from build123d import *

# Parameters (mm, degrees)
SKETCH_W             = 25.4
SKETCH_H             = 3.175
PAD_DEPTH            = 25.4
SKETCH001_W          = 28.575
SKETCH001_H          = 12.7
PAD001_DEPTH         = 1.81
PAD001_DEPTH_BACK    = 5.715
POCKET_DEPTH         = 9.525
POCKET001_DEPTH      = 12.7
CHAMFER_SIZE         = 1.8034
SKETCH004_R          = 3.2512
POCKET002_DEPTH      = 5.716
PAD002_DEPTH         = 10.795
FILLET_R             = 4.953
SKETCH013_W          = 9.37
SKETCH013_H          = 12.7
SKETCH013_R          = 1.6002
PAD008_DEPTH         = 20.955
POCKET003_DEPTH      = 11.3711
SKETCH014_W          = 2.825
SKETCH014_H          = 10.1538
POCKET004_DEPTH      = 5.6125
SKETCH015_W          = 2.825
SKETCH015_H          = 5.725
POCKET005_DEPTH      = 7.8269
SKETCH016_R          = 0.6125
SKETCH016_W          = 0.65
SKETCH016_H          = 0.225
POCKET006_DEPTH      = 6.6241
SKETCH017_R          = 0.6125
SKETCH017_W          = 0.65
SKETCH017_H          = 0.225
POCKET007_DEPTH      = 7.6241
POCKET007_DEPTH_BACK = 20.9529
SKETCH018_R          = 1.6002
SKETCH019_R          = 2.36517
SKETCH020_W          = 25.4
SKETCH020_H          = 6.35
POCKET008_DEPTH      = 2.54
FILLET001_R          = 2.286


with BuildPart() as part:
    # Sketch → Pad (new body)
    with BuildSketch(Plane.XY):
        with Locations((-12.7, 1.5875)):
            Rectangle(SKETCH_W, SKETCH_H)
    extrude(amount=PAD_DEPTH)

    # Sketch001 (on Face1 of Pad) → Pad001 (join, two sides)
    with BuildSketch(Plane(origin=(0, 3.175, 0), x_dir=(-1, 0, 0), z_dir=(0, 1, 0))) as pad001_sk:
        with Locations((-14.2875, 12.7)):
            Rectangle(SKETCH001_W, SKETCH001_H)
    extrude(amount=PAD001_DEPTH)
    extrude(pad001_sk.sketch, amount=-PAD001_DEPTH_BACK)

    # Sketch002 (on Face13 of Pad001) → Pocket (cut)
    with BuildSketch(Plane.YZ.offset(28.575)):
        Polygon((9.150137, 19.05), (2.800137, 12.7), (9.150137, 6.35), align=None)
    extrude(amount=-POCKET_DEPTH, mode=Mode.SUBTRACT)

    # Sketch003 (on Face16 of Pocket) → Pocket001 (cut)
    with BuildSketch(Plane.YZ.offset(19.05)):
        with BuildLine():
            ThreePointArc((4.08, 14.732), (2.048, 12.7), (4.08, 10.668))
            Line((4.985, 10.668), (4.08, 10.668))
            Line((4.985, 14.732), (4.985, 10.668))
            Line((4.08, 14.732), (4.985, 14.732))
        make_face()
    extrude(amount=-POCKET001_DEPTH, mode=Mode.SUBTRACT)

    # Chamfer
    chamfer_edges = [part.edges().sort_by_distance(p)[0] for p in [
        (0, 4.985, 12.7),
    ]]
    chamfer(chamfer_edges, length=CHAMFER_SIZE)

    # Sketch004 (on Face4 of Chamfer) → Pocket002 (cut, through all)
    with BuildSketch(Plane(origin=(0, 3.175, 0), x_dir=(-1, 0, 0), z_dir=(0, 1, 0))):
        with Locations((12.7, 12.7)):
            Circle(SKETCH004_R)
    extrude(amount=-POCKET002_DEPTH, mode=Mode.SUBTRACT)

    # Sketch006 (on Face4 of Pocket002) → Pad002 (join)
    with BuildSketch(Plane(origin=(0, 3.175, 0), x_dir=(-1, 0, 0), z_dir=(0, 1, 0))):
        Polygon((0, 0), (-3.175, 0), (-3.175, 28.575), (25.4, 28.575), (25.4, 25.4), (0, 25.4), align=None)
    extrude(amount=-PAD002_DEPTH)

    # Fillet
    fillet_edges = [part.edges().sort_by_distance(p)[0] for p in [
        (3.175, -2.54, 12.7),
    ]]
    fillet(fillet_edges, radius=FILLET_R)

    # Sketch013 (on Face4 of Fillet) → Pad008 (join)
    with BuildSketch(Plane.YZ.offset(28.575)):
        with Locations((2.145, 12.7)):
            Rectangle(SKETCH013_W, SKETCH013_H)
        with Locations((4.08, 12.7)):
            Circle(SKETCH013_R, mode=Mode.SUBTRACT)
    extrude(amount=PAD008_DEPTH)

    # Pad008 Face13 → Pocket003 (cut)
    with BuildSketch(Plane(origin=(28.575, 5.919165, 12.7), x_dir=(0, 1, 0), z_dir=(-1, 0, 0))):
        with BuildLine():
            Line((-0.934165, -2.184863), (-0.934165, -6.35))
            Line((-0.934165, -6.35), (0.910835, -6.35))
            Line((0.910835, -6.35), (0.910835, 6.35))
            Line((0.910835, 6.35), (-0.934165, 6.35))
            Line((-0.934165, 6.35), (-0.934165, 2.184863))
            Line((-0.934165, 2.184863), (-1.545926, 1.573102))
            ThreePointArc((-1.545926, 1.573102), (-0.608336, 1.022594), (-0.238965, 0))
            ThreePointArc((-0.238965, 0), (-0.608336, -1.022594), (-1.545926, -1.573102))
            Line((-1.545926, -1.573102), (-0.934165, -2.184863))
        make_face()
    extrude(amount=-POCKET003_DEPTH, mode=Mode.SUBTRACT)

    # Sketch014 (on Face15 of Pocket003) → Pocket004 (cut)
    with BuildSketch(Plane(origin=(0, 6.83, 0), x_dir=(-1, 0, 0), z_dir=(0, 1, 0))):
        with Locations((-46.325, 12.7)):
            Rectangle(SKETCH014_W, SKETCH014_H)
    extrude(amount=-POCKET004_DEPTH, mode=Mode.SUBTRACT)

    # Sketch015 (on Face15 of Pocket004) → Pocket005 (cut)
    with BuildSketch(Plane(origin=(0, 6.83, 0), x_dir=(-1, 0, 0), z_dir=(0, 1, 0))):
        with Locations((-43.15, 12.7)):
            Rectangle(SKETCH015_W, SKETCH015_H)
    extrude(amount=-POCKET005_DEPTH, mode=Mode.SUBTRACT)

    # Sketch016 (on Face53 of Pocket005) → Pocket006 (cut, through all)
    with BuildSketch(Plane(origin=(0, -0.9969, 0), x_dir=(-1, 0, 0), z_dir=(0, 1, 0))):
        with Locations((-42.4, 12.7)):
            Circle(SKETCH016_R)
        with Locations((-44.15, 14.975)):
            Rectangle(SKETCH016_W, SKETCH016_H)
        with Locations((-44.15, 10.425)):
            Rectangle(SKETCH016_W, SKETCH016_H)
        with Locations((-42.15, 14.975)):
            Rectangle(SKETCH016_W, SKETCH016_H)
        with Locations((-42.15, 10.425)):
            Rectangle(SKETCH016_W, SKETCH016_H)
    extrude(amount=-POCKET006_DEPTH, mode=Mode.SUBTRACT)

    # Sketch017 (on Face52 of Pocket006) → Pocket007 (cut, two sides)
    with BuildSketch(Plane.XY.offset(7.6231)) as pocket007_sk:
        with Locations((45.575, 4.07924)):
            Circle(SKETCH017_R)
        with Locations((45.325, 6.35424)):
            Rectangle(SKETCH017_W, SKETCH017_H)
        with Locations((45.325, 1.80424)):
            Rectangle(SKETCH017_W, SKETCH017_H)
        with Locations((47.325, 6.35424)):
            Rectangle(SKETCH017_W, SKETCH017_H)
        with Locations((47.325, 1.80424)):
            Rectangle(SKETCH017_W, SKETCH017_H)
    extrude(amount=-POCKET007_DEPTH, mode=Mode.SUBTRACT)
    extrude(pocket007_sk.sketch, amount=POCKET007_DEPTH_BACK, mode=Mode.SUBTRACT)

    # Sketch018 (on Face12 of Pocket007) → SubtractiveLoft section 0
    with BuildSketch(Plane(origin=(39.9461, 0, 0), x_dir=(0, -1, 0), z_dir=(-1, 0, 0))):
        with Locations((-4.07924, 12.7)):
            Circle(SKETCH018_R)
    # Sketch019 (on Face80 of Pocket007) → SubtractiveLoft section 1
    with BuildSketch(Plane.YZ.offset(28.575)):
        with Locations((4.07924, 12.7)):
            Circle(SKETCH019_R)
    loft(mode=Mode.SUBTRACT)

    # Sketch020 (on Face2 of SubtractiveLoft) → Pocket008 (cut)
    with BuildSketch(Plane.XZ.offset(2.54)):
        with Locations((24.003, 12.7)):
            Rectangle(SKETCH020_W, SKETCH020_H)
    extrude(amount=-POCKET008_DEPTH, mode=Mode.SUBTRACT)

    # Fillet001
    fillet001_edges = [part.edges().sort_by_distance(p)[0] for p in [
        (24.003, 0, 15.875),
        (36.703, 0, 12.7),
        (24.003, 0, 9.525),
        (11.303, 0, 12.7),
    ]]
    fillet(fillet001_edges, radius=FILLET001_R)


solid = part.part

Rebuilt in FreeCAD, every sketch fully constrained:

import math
import FreeCAD as App
import Part
import Sketcher

V = App.Vector
Q = App.Units.Quantity


def edges_at(feature, points):
    """Names of the edges that pass closest to the given points."""
    edges = feature.Shape.Edges
    near = lambda p: min(range(len(edges)), key=lambda i: edges[i].distToShape(Part.Vertex(*p))[0])
    return sorted({f"Edge{near(p) + 1}" for p in points})


def add_polygon(sketch, points):
    """Adds a closed chain of lines whose ends are joined by coincident constraints."""
    first, n = sketch.GeometryCount, len(points)
    for a, b in zip(points, points[1:] + points[:1]):
        sketch.addGeometry(Part.LineSegment(App.Vector(*a, 0), App.Vector(*b, 0)), False)
    for i in range(n):
        sketch.addConstraint(Sketcher.Constraint("Coincident", first + i, 2, first + (i + 1) % n, 1))

doc = App.newDocument("Part")
body = doc.addObject("PartDesign::Body", "Body")

sketch1 = body.newObject("Sketcher::SketchObject", "Sketch")
sketch1.AttachmentSupport = (doc.getObject("XY_Plane"), [""])
sketch1.MapMode = "FlatFace"
add_polygon(sketch1, [(-25.4, 3.2), (-25.4, 0), (0, 0), (0, 3.2)])
sketch1.addConstraint(Sketcher.Constraint("Vertical", 0))
sketch1.addConstraint(Sketcher.Constraint("Horizontal", 1))
sketch1.addConstraint(Sketcher.Constraint("Vertical", 2))
sketch1.addConstraint(Sketcher.Constraint("Horizontal", 3))
sketch1.addConstraint(Sketcher.Constraint("Coincident", 1, 2, -1, 1))
sketch1.addConstraint(Sketcher.Constraint("DistanceX", 1, 1, 1, 2, Q("1 in")))
sketch1.addConstraint(Sketcher.Constraint("DistanceY", 0, 2, 0, 1, Q("0.125 in")))
pad1 = body.newObject("PartDesign::Pad", "Pad")
pad1.Profile = sketch1
pad1.Length = Q("1 in")

sketch2 = body.newObject("Sketcher::SketchObject", "Sketch001")
sketch2.AttachmentSupport = (doc.getObject("XZ_Plane"), [""])
sketch2.MapMode = "FlatFace"
sketch2.AttachmentOffset = App.Placement(V(0, 0, -0.125 * 25.4), App.Rotation())
add_polygon(sketch2, [(29, 19), (29, 6), (0, 6), (0, 19)])
sketch2.addConstraint(Sketcher.Constraint("Vertical", 0))
sketch2.addConstraint(Sketcher.Constraint("Horizontal", 1))
sketch2.addConstraint(Sketcher.Constraint("Vertical", 2))
sketch2.addConstraint(Sketcher.Constraint("Horizontal", 3))
sketch2.addConstraint(Sketcher.Constraint("PointOnObject", 1, 2, -2))
sketch2.addConstraint(Sketcher.Constraint("DistanceY", 0, 2, 0, 1, Q("0.5 in")))
sketch2.addConstraint(Sketcher.Constraint("DistanceX", 1, 2, 1, 1, Q("1.125 in")))
sketch2.addConstraint(Sketcher.Constraint("DistanceY", -1, 1, 0, 2, Q("0.25 in")))
pad2 = body.newObject("PartDesign::Pad", "Pad001")
pad2.Profile = sketch2
pad2.Type = "TwoLengths"
pad2.Length = 1.81
pad2.Length2 = Q("0.225 in")
pad2.Reversed = True

sketch3 = body.newObject("Sketcher::SketchObject", "Sketch002")
sketch3.AttachmentSupport = (doc.getObject("YZ_Plane"), [""])
sketch3.MapMode = "FlatFace"
sketch3.AttachmentOffset = App.Placement(V(0, 0, 1.125 * 25.4), App.Rotation())
add_polygon(sketch3, [(9, 19), (3, 13), (9, 6)])
sketch3.addConstraint(Sketcher.Constraint("Vertical", 2))
sketch3.addConstraint(Sketcher.Constraint("Perpendicular", 0, 1))
sketch3.addConstraint(Sketcher.Constraint("Equal", 0, 1))
sketch3.addConstraint(Sketcher.Constraint("DistanceY", 2, 1, 2, 2, Q("0.5 in")))
sketch3.addConstraint(Sketcher.Constraint("DistanceY", -1, 1, 0, 2, Q("0.5 in")))
sketch3.addConstraint(Sketcher.Constraint("DistanceX", -1, 1, 0, 2, Q("2.800137 mm")))
pocket1 = body.newObject("PartDesign::Pocket", "Pocket")
pocket1.Profile = sketch3
pocket1.Length = Q("0.375 in")

sketch4 = body.newObject("Sketcher::SketchObject", "Sketch003")
sketch4.AttachmentSupport = (doc.getObject("YZ_Plane"), [""])
sketch4.MapMode = "FlatFace"
sketch4.AttachmentOffset = App.Placement(V(0, 0, 0.75 * 25.4), App.Rotation())
sketch4.addGeometry(Part.ArcOfCircle(Part.Circle(V(4.1, 12.7, 0), V(0, 0, 1), 2), math.radians(90), math.radians(270)), False)
sketch4.addGeometry(Part.LineSegment(V(4.1, 10.7, 0), V(5, 10.7, 0)), False)
sketch4.addGeometry(Part.LineSegment(V(5, 10.7, 0), V(5, 14.7, 0)), False)
sketch4.addGeometry(Part.LineSegment(V(5, 14.7, 0), V(4.1, 14.7, 0)), False)
sketch4.addConstraint(Sketcher.Constraint("Tangent", 0, 2, 1, 1))
sketch4.addConstraint(Sketcher.Constraint("Coincident", 1, 2, 2, 1))
sketch4.addConstraint(Sketcher.Constraint("Coincident", 2, 2, 3, 1))
sketch4.addConstraint(Sketcher.Constraint("Tangent", 3, 2, 0, 1))
sketch4.addConstraint(Sketcher.Constraint("Horizontal", 1))
sketch4.addConstraint(Sketcher.Constraint("Vertical", 2))
sketch4.addConstraint(Sketcher.Constraint("Horizontal", 3))
sketch4.addConstraint(Sketcher.Constraint("Radius", 0, Q("0.08 in")))
sketch4.addConstraint(Sketcher.Constraint("DistanceY", -1, 1, 0, 3, Q("0.5 in")))
sketch4.addConstraint(Sketcher.Constraint("DistanceX", 1, 1, 1, 2, Q("0.905 mm")))
sketch4.addConstraint(Sketcher.Constraint("DistanceX", -1, 1, 0, 3, Q("4.08 mm")))
pocket2 = body.newObject("PartDesign::Pocket", "Pocket001")
pocket2.Profile = sketch4
pocket2.Length = Q("0.5 in")
doc.recompute()

chamfer = body.newObject("PartDesign::Chamfer", "Chamfer")
chamfer.Base = (pocket2, edges_at(pocket2, [(0, 4.985, 12.7)]))
chamfer.Size = Q("0.071 in")

sketch5 = body.newObject("Sketcher::SketchObject", "Sketch004")
sketch5.AttachmentSupport = (doc.getObject("XZ_Plane"), [""])
sketch5.MapMode = "FlatFace"
sketch5.AttachmentOffset = App.Placement(V(0, 0, -0.125 * 25.4), App.Rotation())
sketch5.addGeometry(Part.Circle(V(-12.7, 12.7, 0), V(0, 0, 1), 3.3), False)
sketch5.addConstraint(Sketcher.Constraint("Diameter", 0, Q("0.256 in")))
sketch5.addConstraint(Sketcher.Constraint("DistanceX", 0, 3, -1, 1, Q("0.5 in")))
sketch5.addConstraint(Sketcher.Constraint("DistanceY", -1, 1, 0, 3, Q("0.5 in")))
pocket3 = body.newObject("PartDesign::Pocket", "Pocket002")
pocket3.Profile = sketch5
pocket3.Type = "ThroughAll"
pocket3.Reversed = True

sketch6 = body.newObject("Sketcher::SketchObject", "Sketch005")
sketch6.AttachmentSupport = (doc.getObject("XZ_Plane"), [""])
sketch6.MapMode = "FlatFace"
sketch6.AttachmentOffset = App.Placement(V(0, 0, -0.125 * 25.4), App.Rotation())
add_polygon(sketch6, [(3.2, 0), (0, 0), (0, 25.4), (-25.4, 25.4), (-25.4, 28.6), (3.2, 28.6)])
sketch6.addConstraint(Sketcher.Constraint("Horizontal", 0))
sketch6.addConstraint(Sketcher.Constraint("Vertical", 1))
sketch6.addConstraint(Sketcher.Constraint("Horizontal", 2))
sketch6.addConstraint(Sketcher.Constraint("Vertical", 3))
sketch6.addConstraint(Sketcher.Constraint("Horizontal", 4))
sketch6.addConstraint(Sketcher.Constraint("Vertical", 5))
sketch6.addConstraint(Sketcher.Constraint("Coincident", 0, 2, -1, 1))
sketch6.addConstraint(Sketcher.Constraint("Equal", 2, 1))
sketch6.addConstraint(Sketcher.Constraint("Equal", 0, 3))
sketch6.addConstraint(Sketcher.Constraint("DistanceX", 2, 2, 2, 1, Q("1 in")))
sketch6.addConstraint(Sketcher.Constraint("DistanceX", 0, 2, 0, 1, Q("0.125 in")))
pad3 = body.newObject("PartDesign::Pad", "Pad002")
pad3.Profile = sketch6
pad3.Length = Q("0.425 in")
doc.recompute()

fillet = body.newObject("PartDesign::Fillet", "Fillet")
fillet.Base = (pad3, edges_at(pad3, [(3.175, -2.54, 12.7)]))
fillet.Radius = Q("0.195 in")

sketch7 = body.newObject("Sketcher::SketchObject", "Sketch006")
sketch7.AttachmentSupport = (doc.getObject("YZ_Plane"), [""])
sketch7.MapMode = "FlatFace"
sketch7.AttachmentOffset = App.Placement(V(0, 0, 1.125 * 25.4), App.Rotation())
add_polygon(sketch7, [(-2.5, 19.1), (-2.5, 6.3), (6.8, 6.3), (6.8, 19.1)])
sketch7.addGeometry(Part.Circle(V(4.1, 12.7, 0), V(0, 0, 1), 1.6), False)
sketch7.addConstraint(Sketcher.Constraint("Vertical", 0))
sketch7.addConstraint(Sketcher.Constraint("Horizontal", 1))
sketch7.addConstraint(Sketcher.Constraint("Vertical", 2))
sketch7.addConstraint(Sketcher.Constraint("Horizontal", 3))
sketch7.addConstraint(Sketcher.Constraint("Diameter", 4, Q("0.126 in")))
sketch7.addConstraint(Sketcher.Constraint("DistanceY", 0, 2, 0, 1, Q("0.5 in")))
sketch7.addConstraint(Sketcher.Constraint("DistanceY", -1, 1, 4, 3, Q("0.5 in")))
sketch7.addConstraint(Sketcher.Constraint("DistanceX", 0, 2, -1, 1, Q("0.1 in")))
sketch7.addConstraint(Sketcher.Constraint("DistanceY", -1, 1, 0, 2, Q("0.25 in")))
sketch7.addConstraint(Sketcher.Constraint("DistanceX", 1, 1, 1, 2, Q("9.37 mm")))
sketch7.addConstraint(Sketcher.Constraint("DistanceX", -1, 1, 4, 3, Q("4.08 mm")))
pad4 = body.newObject("PartDesign::Pad", "Pad003")
pad4.Profile = sketch7
pad4.Length = Q("0.825 in")

sketch8 = body.newObject("Sketcher::SketchObject", "Sketch007")
sketch8.AttachmentSupport = (doc.getObject("YZ_Plane"), [""])
sketch8.MapMode = "FlatFace"
sketch8.AttachmentOffset = App.Placement(V(0, 0, 1.125 * 25.4), App.Rotation())
sketch8.addGeometry(Part.LineSegment(V(5, 14.9, 0), V(5, 19.1, 0)), False)
sketch8.addGeometry(Part.LineSegment(V(5, 19.1, 0), V(6.8, 19.1, 0)), False)
sketch8.addGeometry(Part.LineSegment(V(6.8, 19.1, 0), V(6.8, 6.3, 0)), False)
sketch8.addGeometry(Part.LineSegment(V(6.8, 6.3, 0), V(5, 6.3, 0)), False)
sketch8.addGeometry(Part.LineSegment(V(5, 6.3, 0), V(5, 10.5, 0)), False)
sketch8.addGeometry(Part.LineSegment(V(5, 10.5, 0), V(4.4, 11.1, 0)), False)
sketch8.addGeometry(Part.ArcOfCircle(Part.Circle(V(4.1, 12.7, 0), V(0, 0, 1), 1.6), math.radians(-79), math.radians(0)), False)
sketch8.addGeometry(Part.ArcOfCircle(Part.Circle(V(4.1, 12.7, 0), V(0, 0, 1), 1.6), math.radians(0), math.radians(79)), False)
sketch8.addGeometry(Part.LineSegment(V(4.4, 14.3, 0), V(5, 14.9, 0)), False)
sketch8.addConstraint(Sketcher.Constraint("Coincident", 0, 2, 1, 1))
sketch8.addConstraint(Sketcher.Constraint("Coincident", 1, 2, 2, 1))
sketch8.addConstraint(Sketcher.Constraint("Coincident", 2, 2, 3, 1))
sketch8.addConstraint(Sketcher.Constraint("Coincident", 3, 2, 4, 1))
sketch8.addConstraint(Sketcher.Constraint("Coincident", 4, 2, 5, 1))
sketch8.addConstraint(Sketcher.Constraint("Coincident", 5, 2, 6, 1))
sketch8.addConstraint(Sketcher.Constraint("Tangent", 6, 2, 7, 1))
sketch8.addConstraint(Sketcher.Constraint("Coincident", 7, 2, 8, 1))
sketch8.addConstraint(Sketcher.Constraint("Coincident", 8, 2, 0, 1))
sketch8.addConstraint(Sketcher.Constraint("Vertical", 0))
sketch8.addConstraint(Sketcher.Constraint("Horizontal", 1))
sketch8.addConstraint(Sketcher.Constraint("Vertical", 2))
sketch8.addConstraint(Sketcher.Constraint("Horizontal", 3))
sketch8.addConstraint(Sketcher.Constraint("Vertical", 4))
sketch8.addConstraint(Sketcher.Constraint("Equal", 6, 7))
sketch8.addConstraint(Sketcher.Constraint("Perpendicular", 5, 8))
sketch8.addConstraint(Sketcher.Constraint("Horizontal", 7, 3, 6, 2))
sketch8.addConstraint(Sketcher.Constraint("Vertical", 0, 2, 3, 2))
sketch8.addConstraint(Sketcher.Constraint("Vertical", 5, 2, 7, 2))
sketch8.addConstraint(Sketcher.Constraint("Equal", 0, 4))
sketch8.addConstraint(Sketcher.Constraint("Equal", 5, 8))
sketch8.addConstraint(Sketcher.Constraint("DistanceY", 2, 2, 2, 1, Q("0.5 in")))
sketch8.addConstraint(Sketcher.Constraint("Radius", 6, Q("0.063 in")))
sketch8.addConstraint(Sketcher.Constraint("DistanceY", -1, 1, 6, 3, Q("0.5 in")))
sketch8.addConstraint(Sketcher.Constraint("DistanceX", 1, 1, 1, 2, Q("1.845 mm")))
sketch8.addConstraint(Sketcher.Constraint("DistanceX", -1, 1, 6, 3, Q("4.079999 mm")))
sketch8.addConstraint(Sketcher.Constraint("DistanceX", -1, 1, 0, 2, Q("4.985 mm")))
sketch8.addConstraint(Sketcher.Constraint("DistanceY", -1, 1, 5, 2, Q("11.126898 mm")))
pocket4 = body.newObject("PartDesign::Pocket", "Pocket003")
pocket4.Profile = sketch8
pocket4.Length = 11.3711
pocket4.Reversed = True

sketch9 = body.newObject("Sketcher::SketchObject", "Sketch008")
sketch9.AttachmentSupport = (doc.getObject("XZ_Plane"), [""])
sketch9.MapMode = "FlatFace"
sketch9.AttachmentOffset = App.Placement(V(0, 0, -6.83), App.Rotation())
add_polygon(sketch9, [(47.7, 17.8), (47.7, 7.6), (44.9, 7.6), (44.9, 17.8)])
sketch9.addConstraint(Sketcher.Constraint("Vertical", 0))
sketch9.addConstraint(Sketcher.Constraint("Horizontal", 1))
sketch9.addConstraint(Sketcher.Constraint("Vertical", 2))
sketch9.addConstraint(Sketcher.Constraint("Horizontal", 3))
sketch9.addConstraint(Sketcher.Constraint("DistanceX", 1, 2, 1, 1, Q("2.825 mm")))
sketch9.addConstraint(Sketcher.Constraint("DistanceY", 0, 2, 0, 1, Q("10.1538 mm")))
sketch9.addConstraint(Sketcher.Constraint("DistanceX", -1, 1, 0, 2, Q("47.7375 mm")))
sketch9.addConstraint(Sketcher.Constraint("DistanceY", -1, 1, 0, 2, Q("7.6231 mm")))
pocket5 = body.newObject("PartDesign::Pocket", "Pocket004")
pocket5.Profile = sketch9
pocket5.Length = 5.6125
pocket5.Reversed = True

sketch10 = body.newObject("Sketcher::SketchObject", "Sketch009")
sketch10.AttachmentSupport = (doc.getObject("XZ_Plane"), [""])
sketch10.MapMode = "FlatFace"
sketch10.AttachmentOffset = App.Placement(V(0, 0, -6.83), App.Rotation())
add_polygon(sketch10, [(44.6, 15.6), (44.6, 9.8), (41.7, 9.8), (41.7, 15.6)])
sketch10.addConstraint(Sketcher.Constraint("Vertical", 0))
sketch10.addConstraint(Sketcher.Constraint("Horizontal", 1))
sketch10.addConstraint(Sketcher.Constraint("Vertical", 2))
sketch10.addConstraint(Sketcher.Constraint("Horizontal", 3))
sketch10.addConstraint(Sketcher.Constraint("DistanceX", 1, 2, 1, 1, Q("2.825 mm")))
sketch10.addConstraint(Sketcher.Constraint("DistanceY", 0, 2, 0, 1, Q("5.725 mm")))
sketch10.addConstraint(Sketcher.Constraint("DistanceX", -1, 1, 0, 2, Q("44.5625 mm")))
sketch10.addConstraint(Sketcher.Constraint("DistanceY", -1, 1, 0, 2, Q("9.8375 mm")))
pocket6 = body.newObject("PartDesign::Pocket", "Pocket005")
pocket6.Profile = sketch10
pocket6.Length = 7.8269
pocket6.Reversed = True

sketch11 = body.newObject("Sketcher::SketchObject", "Sketch010")
sketch11.AttachmentSupport = (doc.getObject("XZ_Plane"), [""])
sketch11.MapMode = "FlatFace"
sketch11.AttachmentOffset = App.Placement(V(0, 0, 0.9969), App.Rotation())
sketch11.addGeometry(Part.Circle(V(42.4, 12.7, 0), V(0, 0, 1), 0.61), False)
add_polygon(sketch11, [(44.48, 15.09), (44.48, 14.86), (43.83, 14.86), (43.83, 15.09)])
add_polygon(sketch11, [(44.48, 10.54), (44.48, 10.31), (43.83, 10.31), (43.83, 10.54)])
add_polygon(sketch11, [(42.48, 15.09), (42.48, 14.86), (41.83, 14.86), (41.83, 15.09)])
add_polygon(sketch11, [(42.48, 10.54), (42.48, 10.31), (41.83, 10.31), (41.83, 10.54)])
sketch11.addConstraint(Sketcher.Constraint("Vertical", 1))
sketch11.addConstraint(Sketcher.Constraint("Horizontal", 2))
sketch11.addConstraint(Sketcher.Constraint("Vertical", 3))
sketch11.addConstraint(Sketcher.Constraint("Horizontal", 4))
sketch11.addConstraint(Sketcher.Constraint("Vertical", 5))
sketch11.addConstraint(Sketcher.Constraint("Horizontal", 6))
sketch11.addConstraint(Sketcher.Constraint("Vertical", 7))
sketch11.addConstraint(Sketcher.Constraint("Horizontal", 8))
sketch11.addConstraint(Sketcher.Constraint("Vertical", 9))
sketch11.addConstraint(Sketcher.Constraint("Horizontal", 10))
sketch11.addConstraint(Sketcher.Constraint("Vertical", 11))
sketch11.addConstraint(Sketcher.Constraint("Horizontal", 12))
sketch11.addConstraint(Sketcher.Constraint("Vertical", 13))
sketch11.addConstraint(Sketcher.Constraint("Horizontal", 14))
sketch11.addConstraint(Sketcher.Constraint("Vertical", 15))
sketch11.addConstraint(Sketcher.Constraint("Horizontal", 16))
sketch11.addConstraint(Sketcher.Constraint("Horizontal", 2, 2, 9, 2))
sketch11.addConstraint(Sketcher.Constraint("Horizontal", 4, 2, 11, 2))
sketch11.addConstraint(Sketcher.Constraint("Horizontal", 6, 2, 13, 2))
sketch11.addConstraint(Sketcher.Constraint("Horizontal", 8, 2, 15, 2))
sketch11.addConstraint(Sketcher.Constraint("Vertical", 4, 2, 5, 2))
sketch11.addConstraint(Sketcher.Constraint("Vertical", 3, 2, 6, 2))
sketch11.addConstraint(Sketcher.Constraint("Vertical", 12, 2, 13, 2))
sketch11.addConstraint(Sketcher.Constraint("Vertical", 11, 2, 14, 2))
sketch11.addConstraint(Sketcher.Constraint("Equal", 8, 10))
sketch11.addConstraint(Sketcher.Constraint("Equal", 3, 5))
sketch11.addConstraint(Sketcher.Constraint("DistanceY", -1, 1, 0, 3, Q("0.5 in")))
sketch11.addConstraint(Sketcher.Constraint("Diameter", 0, Q("1.225 mm")))
sketch11.addConstraint(Sketcher.Constraint("DistanceX", 2, 2, 2, 1, Q("0.65 mm")))
sketch11.addConstraint(Sketcher.Constraint("DistanceY", 1, 2, 1, 1, Q("0.225 mm")))
sketch11.addConstraint(Sketcher.Constraint("DistanceX", -1, 1, 0, 3, Q("42.4 mm")))
sketch11.addConstraint(Sketcher.Constraint("DistanceX", -1, 1, 1, 2, Q("44.475 mm")))
sketch11.addConstraint(Sketcher.Constraint("DistanceY", -1, 1, 1, 2, Q("14.8625 mm")))
sketch11.addConstraint(Sketcher.Constraint("DistanceY", -1, 1, 5, 2, Q("10.3125 mm")))
sketch11.addConstraint(Sketcher.Constraint("DistanceX", -1, 1, 9, 2, Q("42.475 mm")))
pocket7 = body.newObject("PartDesign::Pocket", "Pocket006")
pocket7.Profile = sketch11
pocket7.Type = "ThroughAll"
pocket7.Reversed = True

sketch12 = body.newObject("Sketcher::SketchObject", "Sketch011")
sketch12.AttachmentSupport = (doc.getObject("XY_Plane"), [""])
sketch12.MapMode = "FlatFace"
sketch12.AttachmentOffset = App.Placement(V(0, 0, 7.6231), App.Rotation())
sketch12.addGeometry(Part.Circle(V(45.58, 4.08, 0), V(0, 0, 1), 0.61), False)
add_polygon(sketch12, [(45, 6.47), (45, 6.24), (45.65, 6.24), (45.65, 6.47)])
add_polygon(sketch12, [(45, 1.92), (45, 1.69), (45.65, 1.69), (45.65, 1.92)])
add_polygon(sketch12, [(47, 6.47), (47, 6.24), (47.65, 6.24), (47.65, 6.47)])
add_polygon(sketch12, [(47, 1.92), (47, 1.69), (47.65, 1.69), (47.65, 1.92)])
sketch12.addConstraint(Sketcher.Constraint("Vertical", 1))
sketch12.addConstraint(Sketcher.Constraint("Horizontal", 2))
sketch12.addConstraint(Sketcher.Constraint("Vertical", 3))
sketch12.addConstraint(Sketcher.Constraint("Horizontal", 4))
sketch12.addConstraint(Sketcher.Constraint("Vertical", 5))
sketch12.addConstraint(Sketcher.Constraint("Horizontal", 6))
sketch12.addConstraint(Sketcher.Constraint("Vertical", 7))
sketch12.addConstraint(Sketcher.Constraint("Horizontal", 8))
sketch12.addConstraint(Sketcher.Constraint("Vertical", 9))
sketch12.addConstraint(Sketcher.Constraint("Horizontal", 10))
sketch12.addConstraint(Sketcher.Constraint("Vertical", 11))
sketch12.addConstraint(Sketcher.Constraint("Horizontal", 12))
sketch12.addConstraint(Sketcher.Constraint("Vertical", 13))
sketch12.addConstraint(Sketcher.Constraint("Horizontal", 14))
sketch12.addConstraint(Sketcher.Constraint("Vertical", 15))
sketch12.addConstraint(Sketcher.Constraint("Horizontal", 16))
sketch12.addConstraint(Sketcher.Constraint("Horizontal", 2, 2, 9, 2))
sketch12.addConstraint(Sketcher.Constraint("Horizontal", 4, 2, 11, 2))
sketch12.addConstraint(Sketcher.Constraint("Horizontal", 6, 2, 13, 2))
sketch12.addConstraint(Sketcher.Constraint("Horizontal", 8, 2, 15, 2))
sketch12.addConstraint(Sketcher.Constraint("Vertical", 4, 2, 5, 2))
sketch12.addConstraint(Sketcher.Constraint("Vertical", 3, 2, 6, 2))
sketch12.addConstraint(Sketcher.Constraint("Vertical", 12, 2, 13, 2))
sketch12.addConstraint(Sketcher.Constraint("Vertical", 11, 2, 14, 2))
sketch12.addConstraint(Sketcher.Constraint("Equal", 8, 10))
sketch12.addConstraint(Sketcher.Constraint("Equal", 3, 5))
sketch12.addConstraint(Sketcher.Constraint("Diameter", 0, Q("1.225 mm")))
sketch12.addConstraint(Sketcher.Constraint("DistanceX", 2, 1, 2, 2, Q("0.65 mm")))
sketch12.addConstraint(Sketcher.Constraint("DistanceY", 1, 2, 1, 1, Q("0.225 mm")))
sketch12.addConstraint(Sketcher.Constraint("DistanceY", -1, 1, 0, 3, Q("0.1606 in")))
sketch12.addConstraint(Sketcher.Constraint("DistanceX", -1, 1, 0, 3, Q("45.575 mm")))
sketch12.addConstraint(Sketcher.Constraint("DistanceX", -1, 1, 1, 2, Q("45 mm")))
sketch12.addConstraint(Sketcher.Constraint("DistanceX", -1, 1, 9, 2, Q("47 mm")))
sketch12.addConstraint(Sketcher.Constraint("DistanceY", 0, 3, 1, 2, Q("2.1625 mm")))
sketch12.addConstraint(Sketcher.Constraint("DistanceY", 5, 2, 0, 3, Q("2.3875 mm")))
pocket8 = body.newObject("PartDesign::Pocket", "Pocket007")
pocket8.Profile = sketch12
pocket8.Type = "ThroughAll"
pocket8.Midplane = True

sketch13 = body.newObject("Sketcher::SketchObject", "Sketch012")
sketch13.AttachmentSupport = (doc.getObject("YZ_Plane"), [""])
sketch13.MapMode = "FlatFace"
sketch13.AttachmentOffset = App.Placement(V(0, 0, 39.9461), App.Rotation())
sketch13.addGeometry(Part.Circle(V(4.1, 12.7, 0), V(0, 0, 1), 1.6), False)
sketch13.addConstraint(Sketcher.Constraint("Diameter", 0, Q("0.126 in")))
sketch13.addConstraint(Sketcher.Constraint("DistanceY", -1, 1, 0, 3, Q("0.5 in")))
sketch13.addConstraint(Sketcher.Constraint("DistanceX", -1, 1, 0, 3, Q("0.1606 in")))

sketch14 = body.newObject("Sketcher::SketchObject", "Sketch013")
sketch14.AttachmentSupport = (doc.getObject("YZ_Plane"), [""])
sketch14.MapMode = "FlatFace"
sketch14.AttachmentOffset = App.Placement(V(0, 0, 1.125 * 25.4), App.Rotation())
sketch14.addGeometry(Part.Circle(V(4.1, 12.7, 0), V(0, 0, 1), 2.4), False)
sketch14.addConstraint(Sketcher.Constraint("DistanceY", -1, 1, 0, 3, Q("0.5 in")))
sketch14.addConstraint(Sketcher.Constraint("Diameter", 0, Q("4.73034 mm")))
sketch14.addConstraint(Sketcher.Constraint("DistanceX", -1, 1, 0, 3, Q("0.1606 in")))

subtractiveloft = body.newObject("PartDesign::SubtractiveLoft", "SubtractiveLoft")
subtractiveloft.Profile = sketch13
subtractiveloft.Sections = [sketch14]

sketch15 = body.newObject("Sketcher::SketchObject", "Sketch014")
sketch15.AttachmentSupport = (doc.getObject("XZ_Plane"), [""])
sketch15.MapMode = "FlatFace"
sketch15.AttachmentOffset = App.Placement(V(0, 0, 0.1 * 25.4), App.Rotation())
add_polygon(sketch15, [(11, 16), (11, 10), (37, 10), (37, 16)])
sketch15.addConstraint(Sketcher.Constraint("Vertical", 0))
sketch15.addConstraint(Sketcher.Constraint("Horizontal", 1))
sketch15.addConstraint(Sketcher.Constraint("Vertical", 2))
sketch15.addConstraint(Sketcher.Constraint("Horizontal", 3))
sketch15.addConstraint(Sketcher.Constraint("DistanceX", 1, 1, 1, 2, Q("1 in")))
sketch15.addConstraint(Sketcher.Constraint("DistanceY", 0, 2, 0, 1, Q("0.25 in")))
sketch15.addConstraint(Sketcher.Constraint("DistanceX", -1, 1, 0, 2, Q("0.445 in")))
sketch15.addConstraint(Sketcher.Constraint("DistanceY", -1, 1, 0, 2, Q("0.375 in")))
pocket9 = body.newObject("PartDesign::Pocket", "Pocket008")
pocket9.Profile = sketch15
pocket9.Length = Q("0.1 in")
doc.recompute()

fillet2 = body.newObject("PartDesign::Fillet", "Fillet001")
fillet2.Base = (pocket9, edges_at(pocket9, [
    (24.003, 0, 15.875),
    (36.703, 0, 12.7),
    (24.003, 0, 9.525),
    (11.303, 0, 12.7),
]))
fillet2.Radius = Q("0.09 in")

doc.recompute()
